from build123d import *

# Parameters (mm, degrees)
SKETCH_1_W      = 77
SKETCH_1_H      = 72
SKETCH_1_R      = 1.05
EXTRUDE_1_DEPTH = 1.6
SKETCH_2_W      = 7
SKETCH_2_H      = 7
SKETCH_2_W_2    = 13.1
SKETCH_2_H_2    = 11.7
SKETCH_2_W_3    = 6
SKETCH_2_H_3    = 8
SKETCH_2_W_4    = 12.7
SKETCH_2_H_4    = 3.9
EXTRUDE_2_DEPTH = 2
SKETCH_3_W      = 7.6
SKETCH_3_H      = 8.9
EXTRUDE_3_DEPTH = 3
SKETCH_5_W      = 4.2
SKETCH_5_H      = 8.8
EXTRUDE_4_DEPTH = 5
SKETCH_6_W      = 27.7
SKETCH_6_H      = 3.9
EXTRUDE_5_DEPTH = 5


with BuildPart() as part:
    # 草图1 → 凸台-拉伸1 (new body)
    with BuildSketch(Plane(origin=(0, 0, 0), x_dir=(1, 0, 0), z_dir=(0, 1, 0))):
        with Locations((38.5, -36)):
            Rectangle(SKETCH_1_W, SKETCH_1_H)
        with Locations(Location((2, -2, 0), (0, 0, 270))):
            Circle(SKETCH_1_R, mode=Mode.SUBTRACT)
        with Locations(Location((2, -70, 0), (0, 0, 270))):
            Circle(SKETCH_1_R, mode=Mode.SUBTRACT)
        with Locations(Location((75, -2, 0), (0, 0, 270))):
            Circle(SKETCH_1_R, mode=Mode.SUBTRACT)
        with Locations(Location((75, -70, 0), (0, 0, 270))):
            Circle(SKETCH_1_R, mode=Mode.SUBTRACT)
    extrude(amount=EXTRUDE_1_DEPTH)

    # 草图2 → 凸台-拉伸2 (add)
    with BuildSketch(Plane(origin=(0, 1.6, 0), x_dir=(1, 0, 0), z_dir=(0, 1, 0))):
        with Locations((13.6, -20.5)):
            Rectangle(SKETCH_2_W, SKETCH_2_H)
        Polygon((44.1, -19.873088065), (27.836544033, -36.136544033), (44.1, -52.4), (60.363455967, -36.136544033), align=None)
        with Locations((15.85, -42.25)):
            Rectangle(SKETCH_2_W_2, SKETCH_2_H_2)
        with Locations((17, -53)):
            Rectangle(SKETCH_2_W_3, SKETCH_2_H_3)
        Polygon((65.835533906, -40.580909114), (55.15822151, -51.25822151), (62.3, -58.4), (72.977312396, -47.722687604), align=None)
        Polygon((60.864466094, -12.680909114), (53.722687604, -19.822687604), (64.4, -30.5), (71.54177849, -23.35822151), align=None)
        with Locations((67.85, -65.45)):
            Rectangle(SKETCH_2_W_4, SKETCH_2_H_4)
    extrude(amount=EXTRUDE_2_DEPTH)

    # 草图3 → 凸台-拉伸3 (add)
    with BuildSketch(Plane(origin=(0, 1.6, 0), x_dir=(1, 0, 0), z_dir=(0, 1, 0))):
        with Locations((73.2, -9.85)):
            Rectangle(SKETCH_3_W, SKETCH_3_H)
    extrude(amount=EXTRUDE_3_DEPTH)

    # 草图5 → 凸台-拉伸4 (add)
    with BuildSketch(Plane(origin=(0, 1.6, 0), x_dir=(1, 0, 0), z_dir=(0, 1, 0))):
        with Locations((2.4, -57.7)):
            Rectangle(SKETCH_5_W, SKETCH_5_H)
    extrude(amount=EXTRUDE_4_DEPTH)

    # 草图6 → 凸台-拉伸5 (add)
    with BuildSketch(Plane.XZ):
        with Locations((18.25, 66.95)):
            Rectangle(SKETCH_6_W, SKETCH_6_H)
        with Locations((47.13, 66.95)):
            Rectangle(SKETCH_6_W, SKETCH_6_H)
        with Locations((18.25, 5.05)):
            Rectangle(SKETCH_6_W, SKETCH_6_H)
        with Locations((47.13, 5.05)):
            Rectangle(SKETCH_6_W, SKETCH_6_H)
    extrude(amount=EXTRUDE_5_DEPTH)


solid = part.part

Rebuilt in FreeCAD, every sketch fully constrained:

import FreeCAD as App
import Part
import Sketcher
from FreeCAD import Vector
Q = App.Units.Quantity

doc = App.newDocument("Part")
body = doc.addObject("PartDesign::Body", "Body")

sketch1 = body.newObject("Sketcher::SketchObject", "Sketch")
sketch1.AttachmentSupport = (doc.getObject("XZ_Plane"), [""])
sketch1.MapMode = "FlatFace"
sketch1.addGeometry([
    Part.LineSegment(Vector(0, 0, 0), Vector(0, 72, 0)),
    Part.LineSegment(Vector(0, 72, 0), Vector(77, 72, 0)),
    Part.LineSegment(Vector(77, 72, 0), Vector(77, 0, 0)),
    Part.LineSegment(Vector(77, 0, 0), Vector(0, 0, 0)),
    Part.Circle(Vector(2, 70, 0), Vector(0, 0, 1), 1.1),
    Part.Circle(Vector(75, 70, 0), Vector(0, 0, 1), 1.1),
    Part.Circle(Vector(2, 2, 0), Vector(0, 0, 1), 1.1),
    Part.Circle(Vector(75, 2, 0), Vector(0, 0, 1), 1.1),
], False)
sketch1.addConstraint([
    Sketcher.Constraint("Coincident", 0, 2, 1, 1),
    Sketcher.Constraint("Coincident", 1, 2, 2, 1),
    Sketcher.Constraint("Coincident", 2, 2, 3, 1),
    Sketcher.Constraint("Coincident", 3, 2, 0, 1),
    Sketcher.Constraint("Vertical", 0),
    Sketcher.Constraint("Horizontal", 1),
    Sketcher.Constraint("Vertical", 2),
    Sketcher.Constraint("Horizontal", 3),
    Sketcher.Constraint("Coincident", 3, 2, -1, 1),
    Sketcher.Constraint("Equal", 4, 5),
    Sketcher.Constraint("Equal", 5, 6),
    Sketcher.Constraint("Equal", 6, 7),
    Sketcher.Constraint("Horizontal", 4, 3, 5, 3),
    Sketcher.Constraint("Horizontal", 6, 3, 7, 3),
    Sketcher.Constraint("Vertical", 4, 3, 6, 3),
    Sketcher.Constraint("Vertical", 5, 3, 7, 3),
    Sketcher.Constraint("Diameter", 4, Q("2.1 mm")),
    Sketcher.Constraint("DistanceX", 1, 1, 1, 2, Q("77 mm")),
    Sketcher.Constraint("DistanceY", 0, 1, 0, 2, Q("72 mm")),
    Sketcher.Constraint("DistanceX", -1, 1, 4, 3, Q("2 mm")),
    Sketcher.Constraint("DistanceY", -1, 1, 4, 3, Q("70 mm")),
    Sketcher.Constraint("DistanceX", -1, 1, 5, 3, Q("75 mm")),
    Sketcher.Constraint("DistanceY", -1, 1, 6, 3, Q("2 mm")),
])
pad1 = body.newObject("PartDesign::Pad", "Pad")
pad1.Profile = sketch1
pad1.Length = 1.6
pad1.Reversed = True

sketch2 = body.newObject("Sketcher::SketchObject", "Sketch001")
sketch2.AttachmentSupport = (doc.getObject("XZ_Plane"), [""])
sketch2.MapMode = "FlatFace"
sketch2.AttachmentOffset = App.Placement(Vector(0, 0, -1.6), App.Rotation())
sketch2.addGeometry([
    Part.LineSegment(Vector(10.1, 17, 0), Vector(10.1, 24, 0)),
    Part.LineSegment(Vector(10.1, 24, 0), Vector(17.1, 24, 0)),
    Part.LineSegment(Vector(17.1, 24, 0), Vector(17.1, 17, 0)),
    Part.LineSegment(Vector(17.1, 17, 0), Vector(10.1, 17, 0)),
    Part.LineSegment(Vector(44.1, 19.9, 0), Vector(27.8, 36.1, 0)),
    Part.LineSegment(Vector(27.8, 36.1, 0), Vector(44.1, 52.4, 0)),
    Part.LineSegment(Vector(44.1, 52.4, 0), Vector(60.4, 36.1, 0)),
    Part.LineSegment(Vector(60.4, 36.1, 0), Vector(44.1, 19.9, 0)),
    Part.LineSegment(Vector(9.3, 36.4, 0), Vector(9.3, 48.1, 0)),
    Part.LineSegment(Vector(9.3, 48.1, 0), Vector(22.4, 48.1, 0)),
    Part.LineSegment(Vector(22.4, 48.1, 0), Vector(22.4, 36.4, 0)),
    Part.LineSegment(Vector(22.4, 36.4, 0), Vector(9.3, 36.4, 0)),
    Part.LineSegment(Vector(14, 49, 0), Vector(14, 57, 0)),
    Part.LineSegment(Vector(14, 57, 0), Vector(20, 57, 0)),
    Part.LineSegment(Vector(20, 57, 0), Vector(20, 49, 0)),
    Part.LineSegment(Vector(20, 49, 0), Vector(14, 49, 0)),
    Part.LineSegment(Vector(65.8, 40.6, 0), Vector(55.2, 51.3, 0)),
    Part.LineSegment(Vector(55.2, 51.3, 0), Vector(62.3, 58.4, 0)),
    Part.LineSegment(Vector(62.3, 58.4, 0), Vector(73, 47.7, 0)),
    Part.LineSegment(Vector(73, 47.7, 0), Vector(65.8, 40.6, 0)),
    Part.LineSegment(Vector(60.9, 12.7, 0), Vector(53.7, 19.8, 0)),
    Part.LineSegment(Vector(53.7, 19.8, 0), Vector(64.4, 30.5, 0)),
    Part.LineSegment(Vector(64.4, 30.5, 0), Vector(71.5, 23.4, 0)),
    Part.LineSegment(Vector(71.5, 23.4, 0), Vector(60.9, 12.7, 0)),
    Part.LineSegment(Vector(61.5, 63.5, 0), Vector(61.5, 67.4, 0)),
    Part.LineSegment(Vector(61.5, 67.4, 0), Vector(74.2, 67.4, 0)),
    Part.LineSegment(Vector(74.2, 67.4, 0), Vector(74.2, 63.5, 0)),
    Part.LineSegment(Vector(74.2, 63.5, 0), Vector(61.5, 63.5, 0)),
], False)
sketch2.addConstraint([
    Sketcher.Constraint("Coincident", 0, 2, 1, 1),
    Sketcher.Constraint("Coincident", 1, 2, 2, 1),
    Sketcher.Constraint("Coincident", 2, 2, 3, 1),
    Sketcher.Constraint("Coincident", 3, 2, 0, 1),
    Sketcher.Constraint("Coincident", 4, 2, 5, 1),
    Sketcher.Constraint("Coincident", 5, 2, 6, 1),
    Sketcher.Constraint("Coincident", 6, 2, 7, 1),
    Sketcher.Constraint("Coincident", 7, 2, 4, 1),
    Sketcher.Constraint("Coincident", 8, 2, 9, 1),
    Sketcher.Constraint("Coincident", 9, 2, 10, 1),
    Sketcher.Constraint("Coincident", 10, 2, 11, 1),
    Sketcher.Constraint("Coincident", 11, 2, 8, 1),
    Sketcher.Constraint("Coincident", 12, 2, 13, 1),
    Sketcher.Constraint("Coincident", 13, 2, 14, 1),
    Sketcher.Constraint("Coincident", 14, 2, 15, 1),
    Sketcher.Constraint("Coincident", 15, 2, 12, 1),
    Sketcher.Constraint("Coincident", 16, 2, 17, 1),
    Sketcher.Constraint("Coincident", 17, 2, 18, 1),
    Sketcher.Constraint("Coincident", 18, 2, 19, 1),
    Sketcher.Constraint("Coincident", 19, 2, 16, 1),
    Sketcher.Constraint("Coincident", 20, 2, 21, 1),
    Sketcher.Constraint("Coincident", 21, 2, 22, 1),
    Sketcher.Constraint("Coincident", 22, 2, 23, 1),
    Sketcher.Constraint("Coincident", 23, 2, 20, 1),
    Sketcher.Constraint("Coincident", 24, 2, 25, 1),
    Sketcher.Constraint("Coincident", 25, 2, 26, 1),
    Sketcher.Constraint("Coincident", 26, 2, 27, 1),
    Sketcher.Constraint("Coincident", 27, 2, 24, 1),
    Sketcher.Constraint("Vertical", 0),
    Sketcher.Constraint("Horizontal", 1),
    Sketcher.Constraint("Vertical", 2),
    Sketcher.Constraint("Horizontal", 3),
    Sketcher.Constraint("Vertical", 8),
    Sketcher.Constraint("Horizontal", 9),
    Sketcher.Constraint("Vertical", 10),
    Sketcher.Constraint("Horizontal", 11),
    Sketcher.Constraint("Vertical", 12),
    Sketcher.Constraint("Horizontal", 13),
    Sketcher.Constraint("Vertical", 14),
    Sketcher.Constraint("Horizontal", 15),
    Sketcher.Constraint("Vertical", 24),
    Sketcher.Constraint("Horizontal", 25),
    Sketcher.Constraint("Vertical", 26),
    Sketcher.Constraint("Horizontal", 27),
    Sketcher.Constraint("Perpendicular", 4, 5),
    Sketcher.Constraint("Perpendicular", 5, 6),
    Sketcher.Constraint("Perpendicular", 6, 7),
    Sketcher.Constraint("Perpendicular", 7, 16),
    Sketcher.Constraint("Perpendicular", 16, 17),
    Sketcher.Constraint("Perpendicular", 17, 18),
    Sketcher.Constraint("Perpendicular", 18, 19),
    Sketcher.Constraint("Perpendicular", 19, 20),
    Sketcher.Constraint("Perpendicular", 20, 21),
    Sketcher.Constraint("Perpendicular", 21, 22),
    Sketcher.Constraint("Perpendicular", 22, 23),
    Sketcher.Constraint("Horizontal", 4, 2, 6, 2),
    Sketcher.Constraint("Vertical", 5, 2, 7, 2),
    Sketcher.Constraint("Equal", 3, 0),
    Sketcher.Constraint("Equal", 19, 20),
    Sketcher.Constraint("Equal", 18, 21),
    Sketcher.Constraint("DistanceX", 1, 1, 1, 2, Q("7 mm")),
    Sketcher.Constraint("DistanceX", 13, 1, 13, 2, Q("6 mm")),
    Sketcher.Constraint("DistanceY", 12, 1, 12, 2, Q("8 mm")),
    Sketcher.Constraint("Distance", 4, Q("23 mm")),
    Sketcher.Constraint("DistanceX", 9, 1, 9, 2, Q("13.1 mm")),
    Sketcher.Constraint("DistanceX", 25, 1, 25, 2, Q("12.7 mm")),
    Sketcher.Constraint("DistanceY", 8, 1, 8, 2, Q("11.7 mm")),
    Sketcher.Constraint("DistanceY", 24, 1, 24, 2, Q("3.9 mm")),
    Sketcher.Constraint("DistanceY", -1, 1, 0, 2, Q("24 mm")),
    Sketcher.Constraint("DistanceX", -1, 1, 12, 2, Q("14 mm")),
    Sketcher.Constraint("DistanceY", -1, 1, 12, 2, Q("57 mm")),
    Sketcher.Constraint("DistanceX", 1, 2, 5, 2, Q("27 mm")),
    Sketcher.Constraint("DistanceY", 5, 2, 17, 2, Q("6 mm")),
    Sketcher.Constraint("DistanceY", 17, 2, 24, 2, Q("9 mm")),
    Sketcher.Constraint("Distance", 16, Q("15.1 mm")),
    Sketcher.Constraint("Distance", 17, Q("10.1 mm")),
    Sketcher.Constraint("DistanceX", -1, 1, 0, 2, Q("10.1 mm")),
    Sketcher.Constraint("DistanceY", -1, 1, 5, 2, Q("52.4 mm")),
    Sketcher.Constraint("DistanceX", -1, 1, 8, 2, Q("9.3 mm")),
    Sketcher.Constraint("DistanceY", -1, 1, 8, 2, Q("48.1 mm")),
    Sketcher.Constraint("DistanceX", -1, 1, 17, 2, Q("62.3 mm")),
    Sketcher.Constraint("DistanceX", -1, 1, 21, 2, Q("64.4 mm")),
    Sketcher.Constraint("DistanceY", -1, 1, 21, 2, Q("30.5 mm")),
    Sketcher.Constraint("DistanceX", -1, 1, 24, 2, Q("61.5 mm")),
])
pad2 = body.newObject("PartDesign::Pad", "Pad001")
pad2.Profile = sketch2
pad2.Length = 2
pad2.Reversed = True

sketch3 = body.newObject("Sketcher::SketchObject", "Sketch002")
sketch3.AttachmentSupport = (doc.getObject("XZ_Plane"), [""])
sketch3.MapMode = "FlatFace"
sketch3.AttachmentOffset = App.Placement(Vector(0, 0, -1.6), App.Rotation())
sketch3.addGeometry([
    Part.LineSegment(Vector(69, 5, 0), Vector(69, 14, 0)),
    Part.LineSegment(Vector(69, 14, 0), Vector(77, 14, 0)),
    Part.LineSegment(Vector(77, 14, 0), Vector(77, 5, 0)),
    Part.LineSegment(Vector(77, 5, 0), Vector(69, 5, 0)),
], False)
sketch3.addConstraint([
    Sketcher.Constraint("Coincident", 0, 2, 1, 1),
    Sketcher.Constraint("Coincident", 1, 2, 2, 1),
    Sketcher.Constraint("Coincident", 2, 2, 3, 1),
    Sketcher.Constraint("Coincident", 3, 2, 0, 1),
    Sketcher.Constraint("Vertical", 0),
    Sketcher.Constraint("Horizontal", 1),
    Sketcher.Constraint("Vertical", 2),
    Sketcher.Constraint("Horizontal", 3),
    Sketcher.Constraint("DistanceX", 1, 1, 1, 2, Q("7.6 mm")),
    Sketcher.Constraint("DistanceY", 0, 1, 0, 2, Q("8.9 mm")),
    Sketcher.Constraint("DistanceX", -1, 1, 1, 2, Q("77 mm")),
    Sketcher.Constraint("DistanceY", -1, 1, 0, 2, Q("14.3 mm")),
])
pad3 = body.newObject("PartDesign::Pad", "Pad002")
pad3.Profile = sketch3
pad3.Length = 3
pad3.Reversed = True

sketch4 = body.newObject("Sketcher::SketchObject", "Sketch003")
sketch4.AttachmentSupport = (doc.getObject("XZ_Plane"), [""])
sketch4.MapMode = "FlatFace"
sketch4.AttachmentOffset = App.Placement(Vector(0, 0, -1.6), App.Rotation())
sketch4.addGeometry([
    Part.LineSegment(Vector(0.3, 53.3, 0), Vector(0.3, 62.1, 0)),
    Part.LineSegment(Vector(0.3, 62.1, 0), Vector(4.5, 62.1, 0)),
    Part.LineSegment(Vector(4.5, 62.1, 0), Vector(4.5, 53.3, 0)),
    Part.LineSegment(Vector(4.5, 53.3, 0), Vector(0.3, 53.3, 0)),
], False)
sketch4.addConstraint([
    Sketcher.Constraint("Coincident", 0, 2, 1, 1),
    Sketcher.Constraint("Coincident", 1, 2, 2, 1),
    Sketcher.Constraint("Coincident", 2, 2, 3, 1),
    Sketcher.Constraint("Coincident", 3, 2, 0, 1),
    Sketcher.Constraint("Vertical", 0),
    Sketcher.Constraint("Horizontal", 1),
    Sketcher.Constraint("Vertical", 2),
    Sketcher.Constraint("Horizontal", 3),
    Sketcher.Constraint("DistanceX", 1, 1, 1, 2, Q("4.2 mm")),
    Sketcher.Constraint("DistanceY", 0, 1, 0, 2, Q("8.8 mm")),
    Sketcher.Constraint("DistanceX", -1, 1, 0, 2, Q("0.3 mm")),
    Sketcher.Constraint("DistanceY", -1, 1, 0, 2, Q("62.1 mm")),
])
pad4 = body.newObject("PartDesign::Pad", "Pad003")
pad4.Profile = sketch4
pad4.Length = 5
pad4.Reversed = True

sketch5 = body.newObject("Sketcher::SketchObject", "Sketch004")
sketch5.AttachmentSupport = (doc.getObject("XZ_Plane"), [""])
sketch5.MapMode = "FlatFace"
sketch5.addGeometry([
    Part.LineSegment(Vector(4.4, 68.9, 0), Vector(4.4, 65, 0)),
    Part.LineSegment(Vector(4.4, 65, 0), Vector(32.1, 65, 0)),
    Part.LineSegment(Vector(32.1, 65, 0), Vector(32.1, 68.9, 0)),
    Part.LineSegment(Vector(32.1, 68.9, 0), Vector(4.4, 68.9, 0)),
    Part.LineSegment(Vector(33.3, 68.9, 0), Vector(33.3, 65, 0)),
    Part.LineSegment(Vector(33.3, 65, 0), Vector(61, 65, 0)),
    Part.LineSegment(Vector(61, 65, 0), Vector(61, 68.9, 0)),
    Part.LineSegment(Vector(61, 68.9, 0), Vector(33.3, 68.9, 0)),
    Part.LineSegment(Vector(4.4, 7, 0), Vector(4.4, 3.1, 0)),
    Part.LineSegment(Vector(4.4, 3.1, 0), Vector(32.1, 3.1, 0)),
    Part.LineSegment(Vector(32.1, 3.1, 0), Vector(32.1, 7, 0)),
    Part.LineSegment(Vector(32.1, 7, 0), Vector(4.4, 7, 0)),
    Part.LineSegment(Vector(33.3, 7, 0), Vector(33.3, 3.1, 0)),
    Part.LineSegment(Vector(33.3, 3.1, 0), Vector(61, 3.1, 0)),
    Part.LineSegment(Vector(61, 3.1, 0), Vector(61, 7, 0)),
    Part.LineSegment(Vector(61, 7, 0), Vector(33.3, 7, 0)),
], False)
sketch5.addConstraint([
    Sketcher.Constraint("Coincident", 0, 2, 1, 1),
    Sketcher.Constraint("Coincident", 1, 2, 2, 1),
    Sketcher.Constraint("Coincident", 2, 2, 3, 1),
    Sketcher.Constraint("Coincident", 3, 2, 0, 1),
    Sketcher.Constraint("Coincident", 4, 2, 5, 1),
    Sketcher.Constraint("Coincident", 5, 2, 6, 1),
    Sketcher.Constraint("Coincident", 6, 2, 7, 1),
    Sketcher.Constraint("Coincident", 7, 2, 4, 1),
    Sketcher.Constraint("Coincident", 8, 2, 9, 1),
    Sketcher.Constraint("Coincident", 9, 2, 10, 1),
    Sketcher.Constraint("Coincident", 10, 2, 11, 1),
    Sketcher.Constraint("Coincident", 11, 2, 8, 1),
    Sketcher.Constraint("Coincident", 12, 2, 13, 1),
    Sketcher.Constraint("Coincident", 13, 2, 14, 1),
    Sketcher.Constraint("Coincident", 14, 2, 15, 1),
    Sketcher.Constraint("Coincident", 15, 2, 12, 1),
    Sketcher.Constraint("Vertical", 0),
    Sketcher.Constraint("Horizontal", 1),
    Sketcher.Constraint("Vertical", 2),
    Sketcher.Constraint("Horizontal", 3),
    Sketcher.Constraint("Vertical", 4),
    Sketcher.Constraint("Horizontal", 5),
    Sketcher.Constraint("Vertical", 6),
    Sketcher.Constraint("Horizontal", 7),
    Sketcher.Constraint("Vertical", 8),
    Sketcher.Constraint("Horizontal", 9),
    Sketcher.Constraint("Vertical", 10),
    Sketcher.Constraint("Horizontal", 11),
    Sketcher.Constraint("Vertical", 12),
    Sketcher.Constraint("Horizontal", 13),
    Sketcher.Constraint("Vertical", 14),
    Sketcher.Constraint("Horizontal", 15),
    Sketcher.Constraint("Horizontal", 1, 2, 4, 2),
    Sketcher.Constraint("Horizontal", 3, 2, 6, 2),
    Sketcher.Constraint("Horizontal", 9, 2, 12, 2),
    Sketcher.Constraint("Horizontal", 11, 2, 14, 2),
    Sketcher.Constraint("Vertical", 3, 2, 8, 2),
    Sketcher.Constraint("Vertical", 2, 2, 9, 2),
    Sketcher.Constraint("Vertical", 7, 2, 12, 2),
    Sketcher.Constraint("Vertical", 6, 2, 13, 2),
    Sketcher.Constraint("Equal", 3, 5),
    Sketcher.Constraint("Equal", 6, 8),
    Sketcher.Constraint("DistanceX", 1, 1, 1, 2, Q("27.7 mm")),
    Sketcher.Constraint("DistanceY", 0, 2, 0, 1, Q("3.9 mm")),
    Sketcher.Constraint("DistanceY", -1, 1, 0, 2, Q("65 mm")),
    Sketcher.Constraint("DistanceY", -1, 1, 10, 2, Q("7 mm")),
    Sketcher.Constraint("DistanceX", -1, 1, 0, 2, Q("4.4 mm")),
    Sketcher.Constraint("DistanceX", -1, 1, 4, 2, Q("33.28 mm")),
])
pad5 = body.newObject("PartDesign::Pad", "Pad004")
pad5.Profile = sketch5
pad5.Length = 5

doc.recompute()
